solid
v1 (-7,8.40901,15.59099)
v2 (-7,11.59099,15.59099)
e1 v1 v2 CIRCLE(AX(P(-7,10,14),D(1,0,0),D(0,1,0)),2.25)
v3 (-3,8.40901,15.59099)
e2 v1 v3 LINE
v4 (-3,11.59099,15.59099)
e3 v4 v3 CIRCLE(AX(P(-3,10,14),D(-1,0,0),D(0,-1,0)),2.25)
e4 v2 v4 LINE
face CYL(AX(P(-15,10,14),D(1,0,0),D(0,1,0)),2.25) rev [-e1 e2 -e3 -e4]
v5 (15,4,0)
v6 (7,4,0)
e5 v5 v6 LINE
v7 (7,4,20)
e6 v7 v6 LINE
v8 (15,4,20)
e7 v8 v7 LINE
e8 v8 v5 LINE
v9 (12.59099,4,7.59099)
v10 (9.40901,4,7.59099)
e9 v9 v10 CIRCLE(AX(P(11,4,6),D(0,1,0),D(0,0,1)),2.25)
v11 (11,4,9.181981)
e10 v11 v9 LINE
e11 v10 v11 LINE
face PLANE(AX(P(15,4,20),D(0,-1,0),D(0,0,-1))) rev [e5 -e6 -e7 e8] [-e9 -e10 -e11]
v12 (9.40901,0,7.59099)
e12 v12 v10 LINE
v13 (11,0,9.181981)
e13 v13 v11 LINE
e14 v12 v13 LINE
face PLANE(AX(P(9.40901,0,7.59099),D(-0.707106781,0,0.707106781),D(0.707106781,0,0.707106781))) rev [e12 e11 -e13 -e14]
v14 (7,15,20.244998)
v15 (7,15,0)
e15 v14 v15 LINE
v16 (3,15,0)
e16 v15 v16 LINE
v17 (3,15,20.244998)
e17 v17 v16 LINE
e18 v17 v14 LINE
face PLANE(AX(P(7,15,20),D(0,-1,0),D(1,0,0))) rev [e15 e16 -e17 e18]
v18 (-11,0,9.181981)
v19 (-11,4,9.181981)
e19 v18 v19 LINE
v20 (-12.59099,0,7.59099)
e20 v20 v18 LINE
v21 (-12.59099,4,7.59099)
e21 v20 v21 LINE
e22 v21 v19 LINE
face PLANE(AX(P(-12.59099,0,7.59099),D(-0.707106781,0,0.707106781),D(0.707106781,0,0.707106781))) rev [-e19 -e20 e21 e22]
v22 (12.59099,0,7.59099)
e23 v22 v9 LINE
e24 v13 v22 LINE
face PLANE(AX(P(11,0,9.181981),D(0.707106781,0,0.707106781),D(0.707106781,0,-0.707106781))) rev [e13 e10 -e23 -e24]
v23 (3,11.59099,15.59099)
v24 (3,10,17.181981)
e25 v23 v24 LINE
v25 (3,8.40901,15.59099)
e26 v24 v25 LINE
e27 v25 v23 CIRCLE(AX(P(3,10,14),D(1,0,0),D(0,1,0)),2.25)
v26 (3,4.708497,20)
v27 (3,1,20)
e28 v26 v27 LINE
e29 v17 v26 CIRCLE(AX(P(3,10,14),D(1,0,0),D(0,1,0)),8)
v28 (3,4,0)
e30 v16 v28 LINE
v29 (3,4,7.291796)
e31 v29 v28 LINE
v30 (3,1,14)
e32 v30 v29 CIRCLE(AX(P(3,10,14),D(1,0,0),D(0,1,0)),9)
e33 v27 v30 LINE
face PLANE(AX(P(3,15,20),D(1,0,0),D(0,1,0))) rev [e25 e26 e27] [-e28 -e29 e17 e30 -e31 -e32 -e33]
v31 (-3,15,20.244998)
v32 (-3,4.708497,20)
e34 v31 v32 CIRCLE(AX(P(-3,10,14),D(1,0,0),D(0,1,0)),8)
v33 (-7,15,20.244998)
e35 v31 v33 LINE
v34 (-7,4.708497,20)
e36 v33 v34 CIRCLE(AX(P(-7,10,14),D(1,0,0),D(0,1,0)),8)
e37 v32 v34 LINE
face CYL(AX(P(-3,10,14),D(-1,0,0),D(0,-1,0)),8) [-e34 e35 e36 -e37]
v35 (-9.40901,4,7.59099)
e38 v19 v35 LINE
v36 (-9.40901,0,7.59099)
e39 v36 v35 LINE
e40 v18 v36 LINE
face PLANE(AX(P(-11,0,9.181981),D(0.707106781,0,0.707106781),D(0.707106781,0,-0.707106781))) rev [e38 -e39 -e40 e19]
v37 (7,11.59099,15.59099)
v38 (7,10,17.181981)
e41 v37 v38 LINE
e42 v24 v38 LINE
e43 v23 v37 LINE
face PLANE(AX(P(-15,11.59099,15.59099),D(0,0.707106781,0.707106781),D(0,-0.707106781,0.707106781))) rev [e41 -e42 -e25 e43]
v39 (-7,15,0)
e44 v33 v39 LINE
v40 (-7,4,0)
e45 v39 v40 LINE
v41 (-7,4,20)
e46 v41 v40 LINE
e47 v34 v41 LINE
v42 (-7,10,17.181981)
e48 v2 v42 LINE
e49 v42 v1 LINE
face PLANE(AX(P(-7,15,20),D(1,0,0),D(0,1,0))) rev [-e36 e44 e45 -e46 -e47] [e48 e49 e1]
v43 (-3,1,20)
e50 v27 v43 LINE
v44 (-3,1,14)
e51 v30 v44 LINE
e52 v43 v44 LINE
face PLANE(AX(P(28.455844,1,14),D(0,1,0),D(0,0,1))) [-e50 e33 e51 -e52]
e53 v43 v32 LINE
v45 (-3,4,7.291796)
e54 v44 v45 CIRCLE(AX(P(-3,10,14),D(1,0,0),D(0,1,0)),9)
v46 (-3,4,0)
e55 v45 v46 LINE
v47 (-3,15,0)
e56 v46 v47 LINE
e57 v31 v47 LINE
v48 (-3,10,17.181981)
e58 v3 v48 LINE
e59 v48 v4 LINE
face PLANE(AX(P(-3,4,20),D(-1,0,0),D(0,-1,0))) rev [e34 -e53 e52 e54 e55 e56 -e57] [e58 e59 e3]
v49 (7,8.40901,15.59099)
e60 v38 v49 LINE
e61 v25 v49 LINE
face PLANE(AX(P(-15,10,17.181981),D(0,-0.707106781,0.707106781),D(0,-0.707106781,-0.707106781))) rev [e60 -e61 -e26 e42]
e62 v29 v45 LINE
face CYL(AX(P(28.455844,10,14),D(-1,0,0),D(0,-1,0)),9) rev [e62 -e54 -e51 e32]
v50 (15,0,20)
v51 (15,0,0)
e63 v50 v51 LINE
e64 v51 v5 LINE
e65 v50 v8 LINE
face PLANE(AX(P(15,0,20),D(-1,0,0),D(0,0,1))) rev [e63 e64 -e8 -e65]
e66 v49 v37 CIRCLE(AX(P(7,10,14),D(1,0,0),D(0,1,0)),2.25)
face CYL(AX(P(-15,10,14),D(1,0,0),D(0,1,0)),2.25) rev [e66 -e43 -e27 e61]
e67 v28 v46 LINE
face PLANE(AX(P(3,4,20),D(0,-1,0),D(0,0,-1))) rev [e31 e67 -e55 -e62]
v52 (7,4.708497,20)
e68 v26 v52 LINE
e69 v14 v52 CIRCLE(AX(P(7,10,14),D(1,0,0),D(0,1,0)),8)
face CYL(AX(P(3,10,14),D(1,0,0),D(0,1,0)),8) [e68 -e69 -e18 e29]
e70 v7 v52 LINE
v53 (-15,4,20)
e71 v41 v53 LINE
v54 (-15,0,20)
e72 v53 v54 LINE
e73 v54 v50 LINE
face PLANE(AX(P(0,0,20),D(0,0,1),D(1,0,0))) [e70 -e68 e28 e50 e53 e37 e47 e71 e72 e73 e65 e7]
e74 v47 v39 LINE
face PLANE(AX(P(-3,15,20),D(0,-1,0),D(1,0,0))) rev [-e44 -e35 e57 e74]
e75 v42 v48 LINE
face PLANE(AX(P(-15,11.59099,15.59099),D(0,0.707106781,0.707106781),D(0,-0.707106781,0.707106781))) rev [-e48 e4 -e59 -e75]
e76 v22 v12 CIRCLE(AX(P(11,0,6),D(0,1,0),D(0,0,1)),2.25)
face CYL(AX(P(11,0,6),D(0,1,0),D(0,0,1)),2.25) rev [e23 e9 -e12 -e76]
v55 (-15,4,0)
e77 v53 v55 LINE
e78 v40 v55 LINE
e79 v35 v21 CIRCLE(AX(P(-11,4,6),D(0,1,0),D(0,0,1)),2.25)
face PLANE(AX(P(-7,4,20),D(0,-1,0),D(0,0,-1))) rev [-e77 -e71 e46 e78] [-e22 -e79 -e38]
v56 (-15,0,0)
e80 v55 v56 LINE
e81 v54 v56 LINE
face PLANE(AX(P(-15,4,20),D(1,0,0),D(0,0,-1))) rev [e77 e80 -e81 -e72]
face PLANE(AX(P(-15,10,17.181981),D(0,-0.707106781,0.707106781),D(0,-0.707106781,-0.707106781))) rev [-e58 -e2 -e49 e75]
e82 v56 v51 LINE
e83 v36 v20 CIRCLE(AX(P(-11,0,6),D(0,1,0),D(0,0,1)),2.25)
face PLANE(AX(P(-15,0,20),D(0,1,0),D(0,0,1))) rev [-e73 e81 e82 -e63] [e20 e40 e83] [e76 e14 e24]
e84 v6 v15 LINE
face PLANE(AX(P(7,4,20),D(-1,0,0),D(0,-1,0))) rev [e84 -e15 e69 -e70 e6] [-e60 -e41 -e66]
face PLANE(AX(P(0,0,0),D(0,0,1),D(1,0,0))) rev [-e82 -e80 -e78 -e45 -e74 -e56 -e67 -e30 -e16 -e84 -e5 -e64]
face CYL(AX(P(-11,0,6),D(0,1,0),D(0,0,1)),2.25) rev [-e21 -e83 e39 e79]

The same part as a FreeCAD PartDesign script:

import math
import FreeCAD as App
import Part
import Sketcher
Q = App.Units.Quantity


def add_polygon(sketch, points):
    """Adds a closed chain of lines whose ends are joined by coincident constraints."""
    first, n = sketch.GeometryCount, len(points)
    for a, b in zip(points, points[1:] + points[:1]):
        sketch.addGeometry(Part.LineSegment(App.Vector(*a, 0), App.Vector(*b, 0)), False)
    for i in range(n):
        sketch.addConstraint(Sketcher.Constraint("Coincident", first + i, 2, first + (i + 1) % n, 1))

doc = App.newDocument("Part")
body = doc.addObject("PartDesign::Body", "Body")

# Sketch on XY plane
sketch1 = body.newObject("Sketcher::SketchObject", "Sketch")
sketch1.AttachmentSupport = (doc.getObject("XY_Plane"), [""])
sketch1.MapMode = "FlatFace"
add_polygon(sketch1, [(-15, 0), (15, 0), (15, 4), (7, 4), (7, 15), (3, 15), (3, 4), (-3, 4), (-3, 15), (-7, 15), (-7, 4), (-15, 4)])  # lines 0-11
sketch1.addConstraint([
    Sketcher.Constraint("Horizontal", 0),
    Sketcher.Constraint("Vertical", 1),
    Sketcher.Constraint("Horizontal", 2),
    Sketcher.Constraint("Vertical", 3),
    Sketcher.Constraint("Horizontal", 4),
    Sketcher.Constraint("Vertical", 5),
    Sketcher.Constraint("Horizontal", 6),
    Sketcher.Constraint("Vertical", 7),
    Sketcher.Constraint("Horizontal", 8),
    Sketcher.Constraint("Vertical", 9),
    Sketcher.Constraint("Horizontal", 10),
    Sketcher.Constraint("Vertical", 11),
    Sketcher.Constraint("Symmetric", 0, 2, 11, 2, -1, 1),
    Sketcher.Constraint("Symmetric", 4, 2, 7, 2, -2),
    Sketcher.Constraint("Symmetric", 2, 2, 9, 2, -2),
    Sketcher.Constraint("Horizontal", 2, 2, 5, 2),
    Sketcher.Constraint("Equal", 8, 1),
    Sketcher.Constraint("DistanceX", 0, 1, 0, 2, Q("30 mm")),
    Sketcher.Constraint("DistanceX", 2, 2, 2, 1, Q("8 mm")),
    Sketcher.Constraint("DistanceX", 4, 2, 4, 1, Q("4 mm")),
    Sketcher.Constraint("DistanceY", 3, 1, 3, 2, Q("11 mm")),
])
pad1 = body.newObject("PartDesign::Pad", "Pad")
pad1.Profile = sketch1
pad1.Length = 20

# Sketch on XZ plane
sketch2 = body.newObject("Sketcher::SketchObject", "Sketch001")
sketch2.AttachmentSupport = (doc.getObject("XZ_Plane"), [""])
sketch2.MapMode = "FlatFace"
sketch2.AttachmentOffset = App.Placement(App.Vector(0, 0, -4), App.Rotation())
sketch2.addGeometry([
    Part.LineSegment(App.Vector(-12.6, 7.6, 0), App.Vector(-11, 9.2, 0)),  # 0
    Part.LineSegment(App.Vector(-11, 9.2, 0), App.Vector(-9.4, 7.6, 0)),  # 1
    Part.ArcOfCircle(Part.Circle(App.Vector(-11, 6, 0), App.Vector(0, 0, 1), 2.2), math.radians(135), math.radians(405)),  # 2
    Part.LineSegment(App.Vector(9.4, 7.6, 0), App.Vector(11, 9.2, 0)),  # 3
    Part.LineSegment(App.Vector(11, 9.2, 0), App.Vector(12.6, 7.6, 0)),  # 4
    Part.ArcOfCircle(Part.Circle(App.Vector(11, 6, 0), App.Vector(0, 0, 1), 2.2), math.radians(135), math.radians(405)),  # 5
], False)
sketch2.addConstraint([
    Sketcher.Constraint("Coincident", 0, 2, 1, 1),
    Sketcher.Constraint("Tangent", 1, 2, 2, 2),
    Sketcher.Constraint("Tangent", 2, 1, 0, 1),
    Sketcher.Constraint("Coincident", 3, 2, 4, 1),
    Sketcher.Constraint("Tangent", 4, 2, 5, 2),
    Sketcher.Constraint("Tangent", 5, 1, 3, 1),
    Sketcher.Constraint("Equal", 2, 5),
    Sketcher.Constraint("Symmetric", 2, 3, 5, 3, -2),
    Sketcher.Constraint("Symmetric", 0, 2, 3, 2, -2),
    Sketcher.Constraint("Perpendicular", 0, 1),
    Sketcher.Constraint("Perpendicular", 1, 3),
    Sketcher.Constraint("Radius", 2, Q("2.25 mm")),
    Sketcher.Constraint("DistanceX", 2, 3, -1, 1, Q("11 mm")),
    Sketcher.Constraint("DistanceY", -1, 1, 2, 3, Q("6 mm")),
])
pocket1 = body.newObject("PartDesign::Pocket", "Pocket")
pocket1.Profile = sketch2
pocket1.Type = "ThroughAll"
pocket1.Reversed = True

# Sketch on YZ plane
sketch3 = body.newObject("Sketcher::SketchObject", "Sketch002")
sketch3.AttachmentSupport = (doc.getObject("YZ_Plane"), [""])
sketch3.MapMode = "FlatFace"
sketch3.AttachmentOffset = App.Placement(App.Vector(0, 0, 7), App.Rotation())
sketch3.addGeometry([
    Part.LineSegment(App.Vector(11.6, 15.6, 0), App.Vector(10, 17.2, 0)),
    Part.LineSegment(App.Vector(10, 17.2, 0), App.Vector(8.4, 15.6, 0)),
    Part.ArcOfCircle(Part.Circle(App.Vector(10, 14, 0), App.Vector(0, 0, 1), 2.2), math.radians(135), math.radians(405)),
], False)
sketch3.addConstraint([
    Sketcher.Constraint("Coincident", 0, 2, 1, 1),
    Sketcher.Constraint("Tangent", 1, 2, 2, 1),
    Sketcher.Constraint("Tangent", 2, 2, 0, 1),
    Sketcher.Constraint("Perpendicular", 0, 1),
    Sketcher.Constraint("Horizontal", 1, 2, 2, 2),
    Sketcher.Constraint("Radius", 2, Q("2.25 mm")),
    Sketcher.Constraint("DistanceX", -1, 1, 2, 3, Q("10 mm")),
    Sketcher.Constraint("DistanceY", -1, 1, 2, 3, Q("14 mm")),
])
pocket2 = body.newObject("PartDesign::Pocket", "Pocket001")
pocket2.Profile = sketch3
pocket2.Type = "ThroughAll"

# Sketch on YZ plane
sketch4 = body.newObject("Sketcher::SketchObject", "Sketch003")
sketch4.AttachmentSupport = (doc.getObject("YZ_Plane"), [""])
sketch4.MapMode = "FlatFace"
sketch4.AttachmentOffset = App.Placement(App.Vector(0, 0, -3), App.Rotation())
sketch4.addGeometry([
    Part.LineSegment(App.Vector(1, 20, 0), App.Vector(1, 14, 0)),
    Part.ArcOfCircle(Part.Circle(App.Vector(10, 14, 0), App.Vector(0, 0, 1), 9), math.radians(180), math.radians(498)),
    Part.LineSegment(App.Vector(3.3, 20, 0), App.Vector(1, 20, 0)),
], False)
sketch4.addConstraint([
    Sketcher.Constraint("Tangent", 0, 2, 1, 1),
    Sketcher.Constraint("Coincident", 1, 2, 2, 1),
    Sketcher.Constraint("Coincident", 2, 2, 0, 1),
    Sketcher.Constraint("Vertical", 0),
    Sketcher.Constraint("Horizontal", 2),
    Sketcher.Constraint("Radius", 1, Q("9 mm")),
    Sketcher.Constraint("DistanceY", 0, 2, 0, 1, Q("6 mm")),
    Sketcher.Constraint("DistanceX", -1, 1, 1, 3, Q("10 mm")),
    Sketcher.Constraint("DistanceY", -1, 1, 1, 3, Q("14 mm")),
])
pocket3 = body.newObject("PartDesign::Pocket", "Pocket002")
pocket3.Profile = sketch4
pocket3.Length = 6
pocket3.Reversed = True

# Sketch on YZ plane
sketch5 = body.newObject("Sketcher::SketchObject", "Sketch004")
sketch5.AttachmentSupport = (doc.getObject("YZ_Plane"), [""])
sketch5.MapMode = "FlatFace"
sketch5.AttachmentOffset = App.Placement(App.Vector(0, 0, 7), App.Rotation())
sketch5.addGeometry([
    Part.LineSegment(App.Vector(4.71, 20, 0), App.Vector(15, 20, 0)),
    Part.LineSegment(App.Vector(15, 20, 0), App.Vector(15, 20.24, 0)),
    Part.ArcOfCircle(Part.Circle(App.Vector(10, 14, 0), App.Vector(0, 0, 1), 8), math.radians(51), math.radians(131)),
], False)
sketch5.addConstraint([
    Sketcher.Constraint("Coincident", 0, 2, 1, 1),
    Sketcher.Constraint("Coincident", 1, 2, 2, 1),
    Sketcher.Constraint("Coincident", 2, 2, 0, 1),
    Sketcher.Constraint("Horizontal", 0),
    Sketcher.Constraint("Vertical", 1),
    Sketcher.Constraint("Radius", 2, Q("8 mm")),
    Sketcher.Constraint("DistanceX", -1, 1, 2, 3, Q("10 mm")),
    Sketcher.Constraint("DistanceY", -1, 1, 2, 3, Q("14 mm")),
    Sketcher.Constraint("DistanceX", -1, 1, 0, 2, Q("15 mm")),
    Sketcher.Constraint("DistanceY", -1, 1, 0, 2, Q("20 mm")),
])
pad2 = body.newObject("PartDesign::Pad", "Pad001")
pad2.Profile = sketch5
pad2.Length = 4
pad2.Reversed = True
doc.recompute()

mirrored = body.newObject("PartDesign::Mirrored", "Mirrored")
mirrored.Originals = [pad2]
mirrored.MirrorPlane = (doc.getObject("YZ_Plane"), [""])
body.Tip = mirrored

doc.recompute()
